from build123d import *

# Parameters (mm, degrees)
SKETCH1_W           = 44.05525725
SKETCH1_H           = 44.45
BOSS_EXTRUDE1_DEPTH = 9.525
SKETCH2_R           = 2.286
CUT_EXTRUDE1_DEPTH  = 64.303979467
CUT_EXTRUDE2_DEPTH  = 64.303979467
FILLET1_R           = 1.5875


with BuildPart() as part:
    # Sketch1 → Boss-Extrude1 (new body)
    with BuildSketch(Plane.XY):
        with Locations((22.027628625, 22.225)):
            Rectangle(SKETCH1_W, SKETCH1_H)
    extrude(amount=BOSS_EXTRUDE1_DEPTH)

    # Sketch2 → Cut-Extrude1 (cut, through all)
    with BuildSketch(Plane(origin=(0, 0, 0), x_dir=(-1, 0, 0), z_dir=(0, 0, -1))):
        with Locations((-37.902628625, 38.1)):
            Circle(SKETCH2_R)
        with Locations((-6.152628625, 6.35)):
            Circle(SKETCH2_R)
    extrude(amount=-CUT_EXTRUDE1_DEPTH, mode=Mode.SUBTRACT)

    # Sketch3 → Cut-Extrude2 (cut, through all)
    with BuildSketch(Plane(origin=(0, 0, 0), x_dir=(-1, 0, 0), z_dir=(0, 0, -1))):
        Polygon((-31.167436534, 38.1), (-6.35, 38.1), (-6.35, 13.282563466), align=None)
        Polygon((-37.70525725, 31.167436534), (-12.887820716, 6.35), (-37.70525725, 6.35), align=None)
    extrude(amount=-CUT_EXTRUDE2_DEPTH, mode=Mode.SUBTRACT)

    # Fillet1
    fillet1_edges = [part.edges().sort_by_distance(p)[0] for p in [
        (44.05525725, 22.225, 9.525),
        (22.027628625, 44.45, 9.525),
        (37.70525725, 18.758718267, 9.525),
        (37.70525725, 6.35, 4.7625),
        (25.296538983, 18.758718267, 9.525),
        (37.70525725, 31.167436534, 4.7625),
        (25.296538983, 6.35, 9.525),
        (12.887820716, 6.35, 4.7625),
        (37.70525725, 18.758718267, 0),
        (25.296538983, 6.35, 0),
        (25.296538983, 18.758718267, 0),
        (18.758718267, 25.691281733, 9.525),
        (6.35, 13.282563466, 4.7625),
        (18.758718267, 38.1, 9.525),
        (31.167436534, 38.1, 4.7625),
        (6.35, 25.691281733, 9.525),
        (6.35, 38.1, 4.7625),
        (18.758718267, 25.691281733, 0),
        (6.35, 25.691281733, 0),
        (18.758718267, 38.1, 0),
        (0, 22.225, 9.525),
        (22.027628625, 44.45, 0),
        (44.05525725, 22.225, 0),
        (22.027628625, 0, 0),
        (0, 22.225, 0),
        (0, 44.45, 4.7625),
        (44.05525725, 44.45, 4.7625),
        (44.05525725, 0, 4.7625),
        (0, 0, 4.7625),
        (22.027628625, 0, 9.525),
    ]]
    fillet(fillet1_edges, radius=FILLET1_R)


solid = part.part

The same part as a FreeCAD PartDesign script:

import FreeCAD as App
import Part
import Sketcher
from FreeCAD import Vector
Q = App.Units.Quantity


def edges_at(feature, points):
    """Names of the edges that pass closest to the given points."""
    edges = feature.Shape.Edges
    near = lambda p: min(range(len(edges)), key=lambda i: edges[i].distToShape(Part.Vertex(*p))[0])
    return sorted({f"Edge{near(p) + 1}" for p in points})


def add_polygon(sketch, points):
    """Adds a closed chain of lines whose ends are joined by coincident constraints."""
    first, n = sketch.GeometryCount, len(points)
    for a, b in zip(points, points[1:] + points[:1]):
        sketch.addGeometry(Part.LineSegment(App.Vector(*a, 0), App.Vector(*b, 0)), False)
    for i in range(n):
        sketch.addConstraint(Sketcher.Constraint("Coincident", first + i, 2, first + (i + 1) % n, 1))

doc = App.newDocument("Part")
body = doc.addObject("PartDesign::Body", "Body")

# Sketch on XY plane
sketch1 = body.newObject("Sketcher::SketchObject", "Sketch")
sketch1.AttachmentSupport = (doc.getObject("XY_Plane"), [""])
sketch1.MapMode = "FlatFace"
add_polygon(sketch1, [(0, 44), (0, 0), (44, 0), (44, 44)])  # lines 0-3
sketch1.addConstraint([
    Sketcher.Constraint("Vertical", 0),
    Sketcher.Constraint("Horizontal", 1),
    Sketcher.Constraint("Vertical", 2),
    Sketcher.Constraint("Horizontal", 3),
    Sketcher.Constraint("Coincident", 0, 2, -1, 1),
    Sketcher.Constraint("DistanceY", 0, 2, 0, 1, Q("1.75 in")),
    Sketcher.Constraint("DistanceX", 1, 1, 1, 2, 44.055257),
])
pad1 = body.newObject("PartDesign::Pad", "Pad")
pad1.Profile = sketch1
pad1.Length = Q("0.375 in")

# Sketch on XY plane
sketch2 = body.newObject("Sketcher::SketchObject", "Sketch001")
sketch2.AttachmentSupport = (doc.getObject("XY_Plane"), [""])
sketch2.MapMode = "FlatFace"
sketch2.addGeometry([
    Part.Circle(Vector(37.9, 38.1, 0), Vector(0, 0, 1), 2.3),
    Part.Circle(Vector(6.2, 6.3, 0), Vector(0, 0, 1), 2.3),
], False)
sketch2.addConstraint([
    Sketcher.Constraint("Equal", 0, 1),
    Sketcher.Constraint("Diameter", 0, Q("0.18 in")),
    Sketcher.Constraint("DistanceY", -1, 1, 0, 3, Q("1.5 in")),
    Sketcher.Constraint("DistanceY", -1, 1, 1, 3, Q("0.25 in")),
    Sketcher.Constraint("DistanceX", 1, 3, 0, 3, Q("1.25 in")),
    Sketcher.Constraint("DistanceX", -1, 1, 0, 3, 37.902629),
])
pocket1 = body.newObject("PartDesign::Pocket", "Pocket")
pocket1.Profile = sketch2
pocket1.Type = "ThroughAll"
pocket1.Reversed = True

# Sketch on XY plane
sketch3 = body.newObject("Sketcher::SketchObject", "Sketch002")
sketch3.AttachmentSupport = (doc.getObject("XY_Plane"), [""])
sketch3.MapMode = "FlatFace"
add_polygon(sketch3, [(6, 38), (31, 38), (6, 13)])  # lines 0-2
add_polygon(sketch3, [(13, 6), (38, 31), (38, 6)])  # lines 3-5
sketch3.addConstraint([
    Sketcher.Constraint("Horizontal", 0),
    Sketcher.Constraint("Vertical", 2),
    Sketcher.Constraint("Vertical", 4),
    Sketcher.Constraint("Horizontal", 5),
    Sketcher.Constraint("Parallel", 1, 3),
    Sketcher.Constraint("Equal", 0, 5),
    Sketcher.Constraint("Equal", 5, 2),
    Sketcher.Constraint("DistanceY", -1, 1, 0, 2, Q("1.5 in")),
    Sketcher.Constraint("DistanceX", -1, 1, 1, 2, Q("0.25 in")),
    Sketcher.Constraint("DistanceY", -1, 1, 4, 2, Q("0.25 in")),
    Sketcher.Constraint("DistanceX", 0, 1, 0, 2, 24.817437),
    Sketcher.Constraint("DistanceX", -1, 1, 5, 2, 12.887821),
])
pocket2 = body.newObject("PartDesign::Pocket", "Pocket001")
pocket2.Profile = sketch3
pocket2.Type = "ThroughAll"
pocket2.Reversed = True
doc.recompute()

fillet = body.newObject("PartDesign::Fillet", "Fillet")
fillet.Base = (pocket2, edges_at(pocket2, [
    (44.055, 22.225, 9.525),
    (22.028, 44.45, 9.525),
    (37.705, 18.759, 9.525),
    (37.705, 6.35, 4.763),
    (25.297, 18.759, 9.525),
    (37.705, 31.167, 4.763),
    (25.297, 6.35, 9.525),
    (12.888, 6.35, 4.763),
    (37.705, 18.759, 0),
    (25.297, 6.35, 0),
    (25.297, 18.759, 0),
    (18.759, 25.691, 9.525),
    (6.35, 13.283, 4.763),
    (18.759, 38.1, 9.525),
    (31.167, 38.1, 4.763),
    (6.35, 25.691, 9.525),
    (6.35, 38.1, 4.763),
    (18.759, 25.691, 0),
    (6.35, 25.691, 0),
    (18.759, 38.1, 0),
    (0, 22.225, 9.525),
    (22.028, 44.45, 0),
    (44.055, 22.225, 0),
    (22.028, 0, 0),
    (0, 22.225, 0),
    (0, 44.45, 4.763),
    (44.055, 44.45, 4.763),
    (44.055, 0, 4.763),
    (0, 0, 4.763),
    (22.028, 0, 9.525),
]))
fillet.Radius = Q("0.0625 in")

doc.recompute()
